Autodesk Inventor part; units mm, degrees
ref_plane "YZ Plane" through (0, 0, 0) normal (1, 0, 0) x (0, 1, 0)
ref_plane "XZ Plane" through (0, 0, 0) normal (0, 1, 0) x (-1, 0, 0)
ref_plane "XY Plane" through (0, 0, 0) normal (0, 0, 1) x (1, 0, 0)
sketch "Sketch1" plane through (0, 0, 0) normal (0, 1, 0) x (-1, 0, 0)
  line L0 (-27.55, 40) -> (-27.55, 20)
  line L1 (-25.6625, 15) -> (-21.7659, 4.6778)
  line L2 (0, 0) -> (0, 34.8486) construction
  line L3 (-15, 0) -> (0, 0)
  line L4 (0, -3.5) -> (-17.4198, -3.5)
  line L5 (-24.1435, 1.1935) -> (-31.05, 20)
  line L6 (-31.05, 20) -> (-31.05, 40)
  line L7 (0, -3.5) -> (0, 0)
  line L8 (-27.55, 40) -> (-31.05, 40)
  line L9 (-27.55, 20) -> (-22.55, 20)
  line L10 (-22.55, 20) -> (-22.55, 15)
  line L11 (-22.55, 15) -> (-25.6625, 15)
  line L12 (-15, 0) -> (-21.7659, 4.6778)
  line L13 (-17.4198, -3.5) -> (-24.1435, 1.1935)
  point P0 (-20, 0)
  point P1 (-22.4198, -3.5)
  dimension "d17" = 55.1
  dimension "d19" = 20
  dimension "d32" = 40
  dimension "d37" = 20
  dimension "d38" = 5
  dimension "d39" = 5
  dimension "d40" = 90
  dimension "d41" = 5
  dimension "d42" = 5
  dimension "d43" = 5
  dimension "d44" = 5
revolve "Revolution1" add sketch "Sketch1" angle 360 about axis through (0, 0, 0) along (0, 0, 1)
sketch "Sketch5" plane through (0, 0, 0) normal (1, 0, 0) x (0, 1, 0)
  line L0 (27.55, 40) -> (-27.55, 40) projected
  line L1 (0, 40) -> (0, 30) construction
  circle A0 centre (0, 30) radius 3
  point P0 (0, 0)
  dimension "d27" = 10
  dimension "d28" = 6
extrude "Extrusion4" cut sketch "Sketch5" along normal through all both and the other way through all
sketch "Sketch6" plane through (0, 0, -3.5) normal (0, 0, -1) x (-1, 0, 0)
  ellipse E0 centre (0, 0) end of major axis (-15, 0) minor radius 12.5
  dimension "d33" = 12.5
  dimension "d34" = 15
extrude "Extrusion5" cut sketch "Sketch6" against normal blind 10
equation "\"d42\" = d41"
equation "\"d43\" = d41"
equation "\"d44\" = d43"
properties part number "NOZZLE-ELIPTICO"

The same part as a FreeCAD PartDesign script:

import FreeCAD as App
import Part
import Sketcher
Q = App.Units.Quantity


def add_polygon(sketch, points):
    """Adds a closed chain of lines whose ends are joined by coincident constraints."""
    first, n = sketch.GeometryCount, len(points)
    for a, b in zip(points, points[1:] + points[:1]):
        sketch.addGeometry(Part.LineSegment(App.Vector(*a, 0), App.Vector(*b, 0)), False)
    for i in range(n):
        sketch.addConstraint(Sketcher.Constraint("Coincident", first + i, 2, first + (i + 1) % n, 1))

doc = App.newDocument("Part")
params = doc.addObject("Spreadsheet::Sheet", "Params")
for row, (alias, value) in enumerate([
    ("sketch1_width", "5 mm"),
    ("sketch1_height", "20 mm"),
    ("sketch1_width2", "15 mm"),
    ("sketch1_width3", "3.5 mm"),
    ("revolution_angle", "360 deg"),
    ("sketch2_diameter", "6 mm"),
    ("pocket2_length", "10 mm"),
], start=1):
    params.set(f"A{row}", alias)
    params.set(f"B{row}", "=" + value)
    params.setAlias(f"B{row}", alias)

body = doc.addObject("PartDesign::Body", "Body")

sketch1 = doc.addObject("Sketcher::SketchObject", "Sketch")
body.addObject(sketch1)
sketch1.AttachmentSupport = (doc.XZ_Plane, [""])
sketch1.MapMode = "FlatFace"
add_polygon(sketch1, [(27.6, 20), (27.6, 40), (31.1, 40), (31.1, 20), (24.1, 1.2), (17.4, -3.5), (0, -3.5), (0, 0), (15, 0), (21.8, 4.7), (25.7, 15), (22.6, 15), (22.6, 20)])
sketch1.addConstraint([
    Sketcher.Constraint("Vertical", 0),
    Sketcher.Constraint("Horizontal", 1),
    Sketcher.Constraint("Vertical", 2),
    Sketcher.Constraint("Horizontal", 5),
    Sketcher.Constraint("Vertical", 6),
    Sketcher.Constraint("Horizontal", 7),
    Sketcher.Constraint("Horizontal", 10),
    Sketcher.Constraint("Vertical", 11),
    Sketcher.Constraint("Horizontal", 12),
    Sketcher.Constraint("Coincident", 6, 2, -1, 1),
    Sketcher.Constraint("Horizontal", 2, 2, 11, 2),
    Sketcher.Constraint("Equal", 1, 6),
    Sketcher.Constraint("Equal", 12, 11),
    Sketcher.Constraint("DistanceX", 12, 1, 12, 2, 5.0),
    Sketcher.Constraint("DistanceY", 0, 1, 0, 2, 20.0),
    Sketcher.Constraint("DistanceY", -1, 1, 0, 2, 40.0),
    Sketcher.Constraint("DistanceX", 7, 1, 7, 2, 15.0),
    Sketcher.Constraint("DistanceX", 1, 1, 1, 2, 3.5),
    Sketcher.Constraint("Angle", 8, Q("34.6592 deg")),
    Sketcher.Constraint("DistanceX", -1, 1, 0, 2, 27.55),
    Sketcher.Constraint("DistanceX", 5, 2, 5, 1, 17.4198),
    Sketcher.Constraint("DistanceX", 10, 2, 10, 1, 3.1125),
    Sketcher.Constraint("DistanceX", -1, 1, 8, 2, 21.766),
    Sketcher.Constraint("DistanceX", 3, 2, 9, 2, 1.519),
    Sketcher.Constraint("Distance", 3, 20.0346),
])
sketch1.setExpression("Constraints[26]", "Params.sketch1_width")
sketch1.setExpression("Constraints[27]", "Params.sketch1_height")
sketch1.setExpression("Constraints[29]", "Params.sketch1_width2")
sketch1.setExpression("Constraints[30]", "Params.sketch1_width3")
revolution = doc.addObject("PartDesign::Revolution", "Revolution")
body.addObject(revolution)
revolution.Profile = sketch1
revolution.ReferenceAxis = (sketch1, ["V_Axis"])
revolution.setExpression("Angle", "Params.revolution_angle")

sketch2 = doc.addObject("Sketcher::SketchObject", "Sketch001")
body.addObject(sketch2)
sketch2.AttachmentSupport = (doc.YZ_Plane, [""])
sketch2.MapMode = "FlatFace"
sketch2.addGeometry(Part.Circle(App.Vector(0, 30, 0), App.Vector(0, 0, 1), 3), False)
sketch2.addConstraint([
    Sketcher.Constraint("PointOnObject", 0, 3, -2),
    Sketcher.Constraint("Diameter", 0, 6.0),
    Sketcher.Constraint("DistanceY", -1, 1, 0, 3, 30.0),
])
sketch2.setExpression("Constraints[1]", "Params.sketch2_diameter")
pocket1 = doc.addObject("PartDesign::Pocket", "Pocket")
body.addObject(pocket1)
pocket1.Profile = sketch2
pocket1.Type = "ThroughAll"
pocket1.Midplane = True

sketch3 = doc.addObject("Sketcher::SketchObject", "Sketch002")
body.addObject(sketch3)
sketch3.AttachmentSupport = (doc.XY_Plane, [""])
sketch3.MapMode = "FlatFace"
sketch3.AttachmentOffset = App.Placement(App.Vector(0, 0, -3.5), App.Rotation())
sketch3.addGeometry(Part.Ellipse(App.Vector(15, 0, 0), App.Vector(0, 12.5, 0), App.Vector(0, 0, 0)), False)
sketch3.addConstraint(Sketcher.Constraint("Block", 0))
pocket2 = doc.addObject("PartDesign::Pocket", "Pocket001")
body.addObject(pocket2)
pocket2.Profile = sketch3
pocket2.setExpression("Length", "Params.pocket2_length")
pocket2.Reversed = True

doc.recompute()
